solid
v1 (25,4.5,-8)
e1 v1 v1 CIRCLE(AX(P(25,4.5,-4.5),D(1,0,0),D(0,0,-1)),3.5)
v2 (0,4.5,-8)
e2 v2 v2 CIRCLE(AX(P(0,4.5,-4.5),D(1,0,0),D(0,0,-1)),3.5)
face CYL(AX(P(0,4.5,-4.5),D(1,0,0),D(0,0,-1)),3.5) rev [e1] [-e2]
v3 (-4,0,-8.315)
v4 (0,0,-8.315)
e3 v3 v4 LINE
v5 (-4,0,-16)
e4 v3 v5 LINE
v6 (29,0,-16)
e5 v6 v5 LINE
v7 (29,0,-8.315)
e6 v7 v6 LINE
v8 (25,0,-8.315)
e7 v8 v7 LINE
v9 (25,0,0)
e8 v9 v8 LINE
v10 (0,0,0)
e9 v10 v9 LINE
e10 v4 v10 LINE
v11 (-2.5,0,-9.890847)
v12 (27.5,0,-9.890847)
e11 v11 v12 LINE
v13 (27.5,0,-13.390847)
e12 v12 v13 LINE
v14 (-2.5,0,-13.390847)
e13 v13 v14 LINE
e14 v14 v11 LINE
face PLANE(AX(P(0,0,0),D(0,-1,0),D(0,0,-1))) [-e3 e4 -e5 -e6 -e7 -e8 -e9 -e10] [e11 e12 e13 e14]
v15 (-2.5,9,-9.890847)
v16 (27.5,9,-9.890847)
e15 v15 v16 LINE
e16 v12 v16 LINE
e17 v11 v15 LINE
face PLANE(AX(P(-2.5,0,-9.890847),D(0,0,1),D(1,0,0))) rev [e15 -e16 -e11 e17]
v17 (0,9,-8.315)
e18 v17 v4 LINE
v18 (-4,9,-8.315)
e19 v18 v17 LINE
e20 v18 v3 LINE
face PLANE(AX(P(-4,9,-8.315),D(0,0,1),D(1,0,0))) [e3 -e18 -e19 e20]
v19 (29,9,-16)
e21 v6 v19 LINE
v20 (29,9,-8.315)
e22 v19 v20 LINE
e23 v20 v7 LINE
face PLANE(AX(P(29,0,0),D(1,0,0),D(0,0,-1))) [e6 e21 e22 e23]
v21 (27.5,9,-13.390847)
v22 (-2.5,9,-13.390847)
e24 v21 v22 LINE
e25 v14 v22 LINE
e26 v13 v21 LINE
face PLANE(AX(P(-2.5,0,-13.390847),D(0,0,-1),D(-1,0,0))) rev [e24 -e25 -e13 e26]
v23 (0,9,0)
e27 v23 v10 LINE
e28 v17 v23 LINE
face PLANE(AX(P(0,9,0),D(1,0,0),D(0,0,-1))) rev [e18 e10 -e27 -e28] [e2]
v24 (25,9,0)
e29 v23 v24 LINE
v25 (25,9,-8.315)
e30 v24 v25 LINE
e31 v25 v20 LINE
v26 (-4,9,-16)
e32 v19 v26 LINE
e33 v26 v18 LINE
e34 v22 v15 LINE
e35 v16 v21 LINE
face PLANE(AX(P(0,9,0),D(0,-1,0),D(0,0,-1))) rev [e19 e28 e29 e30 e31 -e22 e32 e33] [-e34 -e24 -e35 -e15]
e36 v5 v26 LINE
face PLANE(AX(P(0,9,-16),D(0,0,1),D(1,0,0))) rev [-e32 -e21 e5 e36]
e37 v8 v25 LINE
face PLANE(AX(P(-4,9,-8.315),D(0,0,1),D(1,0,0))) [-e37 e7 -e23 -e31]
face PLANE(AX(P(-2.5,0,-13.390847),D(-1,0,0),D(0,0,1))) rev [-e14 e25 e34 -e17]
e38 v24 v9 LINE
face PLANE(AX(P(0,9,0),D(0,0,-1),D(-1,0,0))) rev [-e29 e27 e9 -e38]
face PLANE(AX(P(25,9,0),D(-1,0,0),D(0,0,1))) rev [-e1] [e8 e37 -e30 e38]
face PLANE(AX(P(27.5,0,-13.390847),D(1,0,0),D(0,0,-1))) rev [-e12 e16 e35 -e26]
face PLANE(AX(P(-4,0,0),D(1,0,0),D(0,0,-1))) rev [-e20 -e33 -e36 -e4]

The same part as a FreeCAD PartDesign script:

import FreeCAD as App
import Part
import Sketcher
Q = App.Units.Quantity


def add_polygon(sketch, points):
    """Adds a closed chain of lines whose ends are joined by coincident constraints."""
    first, n = sketch.GeometryCount, len(points)
    for a, b in zip(points, points[1:] + points[:1]):
        sketch.addGeometry(Part.LineSegment(App.Vector(*a, 0), App.Vector(*b, 0)), False)
    for i in range(n):
        sketch.addConstraint(Sketcher.Constraint("Coincident", first + i, 2, first + (i + 1) % n, 1))

doc = App.newDocument("Part")
body = doc.addObject("PartDesign::Body", "Body")

sketch1 = body.newObject("Sketcher::SketchObject", "Sketch")
sketch1.AttachmentSupport = (doc.getObject("XZ_Plane"), [""])
sketch1.MapMode = "FlatFace"
add_polygon(sketch1, [(0, -16), (0, 0), (25, 0), (25, -16)])
sketch1.addConstraint([
    Sketcher.Constraint("Vertical", 0),
    Sketcher.Constraint("Horizontal", 1),
    Sketcher.Constraint("Vertical", 2),
    Sketcher.Constraint("Horizontal", 3),
    Sketcher.Constraint("Coincident", 0, 2, -1, 1),
    Sketcher.Constraint("DistanceX", 1, 1, 1, 2, Q("25 mm")),
    Sketcher.Constraint("DistanceY", 0, 1, 0, 2, Q("16 mm")),
])
pad1 = body.newObject("PartDesign::Pad", "Pad")
pad1.Profile = sketch1
pad1.Length = 9
pad1.Reversed = True

sketch2 = body.newObject("Sketcher::SketchObject", "Sketch001")
sketch2.AttachmentSupport = (doc.getObject("YZ_Plane"), [""])
sketch2.MapMode = "FlatFace"
sketch2.AttachmentOffset = App.Placement(App.Vector(0, 0, 25), App.Rotation())
sketch2.addGeometry(Part.Circle(App.Vector(4.5, -4.5, 0), App.Vector(0, 0, 1), 3.5), False)
sketch2.addConstraint([
    Sketcher.Constraint("Diameter", 0, Q("7 mm")),
    Sketcher.Constraint("DistanceX", -1, 1, 0, 3, Q("4.5 mm")),
    Sketcher.Constraint("DistanceY", 0, 3, -1, 1, Q("4.5 mm")),
])
pocket1 = body.newObject("PartDesign::Pocket", "Pocket")
pocket1.Profile = sketch2
pocket1.Type = "ThroughAll"

sketch3 = body.newObject("Sketcher::SketchObject", "Sketch002")
sketch3.AttachmentSupport = (doc.getObject("YZ_Plane"), [""])
sketch3.MapMode = "FlatFace"
sketch3.AttachmentOffset = App.Placement(App.Vector(0, 0, 25), App.Rotation())
add_polygon(sketch3, [(9, -8), (0, -8), (0, -16), (9, -16)])
sketch3.addConstraint([
    Sketcher.Constraint("Horizontal", 0),
    Sketcher.Constraint("Vertical", 1),
    Sketcher.Constraint("Horizontal", 2),
    Sketcher.Constraint("Vertical", 3),
    Sketcher.Constraint("PointOnObject", 0, 2, -2),
    Sketcher.Constraint("DistanceX", 0, 2, 0, 1, Q("9 mm")),
    Sketcher.Constraint("DistanceY", 1, 2, -1, 1, Q("16 mm")),
    Sketcher.Constraint("DistanceY", 1, 2, 1, 1, Q("7.685 mm")),
])
pad2 = body.newObject("PartDesign::Pad", "Pad001")
pad2.Profile = sketch3
pad2.Type = "TwoLengths"
pad2.Length = 4
pad2.Length2 = 29

sketch4 = body.newObject("Sketcher::SketchObject", "Sketch003")
sketch4.AttachmentSupport = (doc.getObject("XZ_Plane"), [""])
sketch4.MapMode = "FlatFace"
sketch4.AttachmentOffset = App.Placement(App.Vector(0, 0, -9), App.Rotation())
add_polygon(sketch4, [(-2.5, -13.4), (-2.5, -9.9), (27.5, -9.9), (27.5, -13.4)])
sketch4.addConstraint([
    Sketcher.Constraint("Vertical", 0),
    Sketcher.Constraint("Horizontal", 1),
    Sketcher.Constraint("Vertical", 2),
    Sketcher.Constraint("Horizontal", 3),
    Sketcher.Constraint("DistanceX", 1, 1, 1, 2, Q("30 mm")),
    Sketcher.Constraint("DistanceY", 0, 1, 0, 2, Q("3.5 mm")),
    Sketcher.Constraint("DistanceX", 0, 2, -1, 1, Q("2.5 mm")),
    Sketcher.Constraint("DistanceY", 0, 2, -1, 1, Q("9.890847 mm")),
])
pocket2 = body.newObject("PartDesign::Pocket", "Pocket001")
pocket2.Profile = sketch4
pocket2.Type = "ThroughAll"
pocket2.Reversed = True

doc.recompute()
